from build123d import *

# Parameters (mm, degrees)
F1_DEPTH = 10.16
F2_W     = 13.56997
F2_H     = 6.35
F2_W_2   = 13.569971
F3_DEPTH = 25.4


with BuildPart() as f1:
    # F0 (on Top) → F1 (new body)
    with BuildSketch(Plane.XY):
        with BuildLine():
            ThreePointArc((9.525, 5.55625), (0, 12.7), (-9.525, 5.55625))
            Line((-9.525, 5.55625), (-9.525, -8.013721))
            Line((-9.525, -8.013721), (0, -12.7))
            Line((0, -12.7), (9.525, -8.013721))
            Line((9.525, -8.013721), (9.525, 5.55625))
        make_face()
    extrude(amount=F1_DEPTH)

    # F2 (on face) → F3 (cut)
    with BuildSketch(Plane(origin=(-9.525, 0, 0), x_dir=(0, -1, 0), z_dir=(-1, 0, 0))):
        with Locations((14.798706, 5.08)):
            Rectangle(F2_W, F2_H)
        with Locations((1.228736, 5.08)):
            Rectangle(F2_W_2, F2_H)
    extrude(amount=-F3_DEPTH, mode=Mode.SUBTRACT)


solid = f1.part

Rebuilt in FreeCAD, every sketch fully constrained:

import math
import FreeCAD as App
import Part
import Sketcher
Q = App.Units.Quantity


def add_polygon(sketch, points):
    """Adds a closed chain of lines whose ends are joined by coincident constraints."""
    first, n = sketch.GeometryCount, len(points)
    for a, b in zip(points, points[1:] + points[:1]):
        sketch.addGeometry(Part.LineSegment(App.Vector(*a, 0), App.Vector(*b, 0)), False)
    for i in range(n):
        sketch.addConstraint(Sketcher.Constraint("Coincident", first + i, 2, first + (i + 1) % n, 1))

doc = App.newDocument("Part")
params = doc.addObject("Spreadsheet::Sheet", "Params")
for row, (alias, value) in enumerate([
    ("sketch1_radius", "0.390625 in"),
    ("pad1_length", "0.4 in"),
    ("sketch2_height", "0.25 in"),
    ("pocket1_length", "1 in"),
], start=1):
    params.set(f"A{row}", alias)
    params.set(f"B{row}", "=" + value)
    params.setAlias(f"B{row}", alias)

body = doc.addObject("PartDesign::Body", "Body")

# Sketch on XY plane
sketch1 = doc.addObject("Sketcher::SketchObject", "Sketch")
body.addObject(sketch1)
sketch1.AttachmentSupport = (doc.XY_Plane, [""])
sketch1.MapMode = "FlatFace"
sketch1.addGeometry([
    Part.ArcOfCircle(Part.Circle(App.Vector(0, 2.778125, 0), App.Vector(0, 0, 1), 9.921875), math.radians(16.260205), math.radians(163.739795)),  # 0
    Part.LineSegment(App.Vector(-9.525, 5.55625, 0), App.Vector(-9.525, -8.013721, 0)),  # 1
    Part.LineSegment(App.Vector(-9.525, -8.013721, 0), App.Vector(0, -12.7, 0)),  # 2
    Part.LineSegment(App.Vector(0, -12.7, 0), App.Vector(9.525, -8.013721, 0)),  # 3
    Part.LineSegment(App.Vector(9.525, -8.013721, 0), App.Vector(9.525, 5.55625, 0)),  # 4
], False)
sketch1.addConstraint([
    Sketcher.Constraint("Coincident", 0, 2, 1, 1),
    Sketcher.Constraint("Coincident", 1, 2, 2, 1),
    Sketcher.Constraint("Coincident", 2, 2, 3, 1),
    Sketcher.Constraint("Coincident", 3, 2, 4, 1),
    Sketcher.Constraint("Coincident", 4, 2, 0, 1),
    Sketcher.Constraint("Vertical", 1),
    Sketcher.Constraint("Vertical", 4),
    Sketcher.Constraint("Symmetric", 1, 2, 3, 2, -2),
    Sketcher.Constraint("PointOnObject", 0, 3, -2),
    Sketcher.Constraint("PointOnObject", 2, 2, -2),
    Sketcher.Constraint("Radius", 0, Q("0.390625 in")),
    Sketcher.Constraint("DistanceY", 2, 2, -1, 1, Q("0.5 in")),
    Sketcher.Constraint("DistanceX", 1, 2, 3, 2, Q("0.75 in")),
    Sketcher.Constraint("DistanceY", -1, 1, 0, 3, Q("0.109375 in")),
    Sketcher.Constraint("DistanceY", 1, 2, 1, 1, Q("13.569971 mm")),
])
sketch1.setExpression("Constraints[10]", "Params.sketch1_radius")
pad1 = doc.addObject("PartDesign::Pad", "Pad")
body.addObject(pad1)
pad1.Profile = sketch1
pad1.setExpression("Length", "Params.pad1_length")

# Sketch on YZ plane
sketch2 = doc.addObject("Sketcher::SketchObject", "Sketch001")
body.addObject(sketch2)
sketch2.AttachmentSupport = (doc.YZ_Plane, [""])
sketch2.MapMode = "FlatFace"
sketch2.AttachmentOffset = App.Placement(App.Vector(0, 0, -0.375 * 25.4), App.Rotation())
add_polygon(sketch2, [(5.556249, 8.255), (5.556249, 1.905), (-21.583691, 1.905), (-21.583691, 8.255)])  # lines 0-3
sketch2.addConstraint([
    Sketcher.Constraint("Vertical", 0),
    Sketcher.Constraint("Horizontal", 1),
    Sketcher.Constraint("Vertical", 2),
    Sketcher.Constraint("Horizontal", 3),
    Sketcher.Constraint("DistanceY", 0, 2, 0, 1, Q("0.25 in")),
    Sketcher.Constraint("DistanceX", -1, 1, 0, 2, Q("0.21875 in")),
    Sketcher.Constraint("DistanceY", -1, 1, 0, 2, Q("0.075 in")),
    Sketcher.Constraint("DistanceX", 1, 2, 1, 1, Q("27.139941 mm")),
])
sketch2.setExpression("Constraints[8]", "Params.sketch2_height")
pocket1 = doc.addObject("PartDesign::Pocket", "Pocket")
body.addObject(pocket1)
pocket1.Profile = sketch2
pocket1.setExpression("Length", "Params.pocket1_length")
pocket1.Reversed = True

doc.recompute()
